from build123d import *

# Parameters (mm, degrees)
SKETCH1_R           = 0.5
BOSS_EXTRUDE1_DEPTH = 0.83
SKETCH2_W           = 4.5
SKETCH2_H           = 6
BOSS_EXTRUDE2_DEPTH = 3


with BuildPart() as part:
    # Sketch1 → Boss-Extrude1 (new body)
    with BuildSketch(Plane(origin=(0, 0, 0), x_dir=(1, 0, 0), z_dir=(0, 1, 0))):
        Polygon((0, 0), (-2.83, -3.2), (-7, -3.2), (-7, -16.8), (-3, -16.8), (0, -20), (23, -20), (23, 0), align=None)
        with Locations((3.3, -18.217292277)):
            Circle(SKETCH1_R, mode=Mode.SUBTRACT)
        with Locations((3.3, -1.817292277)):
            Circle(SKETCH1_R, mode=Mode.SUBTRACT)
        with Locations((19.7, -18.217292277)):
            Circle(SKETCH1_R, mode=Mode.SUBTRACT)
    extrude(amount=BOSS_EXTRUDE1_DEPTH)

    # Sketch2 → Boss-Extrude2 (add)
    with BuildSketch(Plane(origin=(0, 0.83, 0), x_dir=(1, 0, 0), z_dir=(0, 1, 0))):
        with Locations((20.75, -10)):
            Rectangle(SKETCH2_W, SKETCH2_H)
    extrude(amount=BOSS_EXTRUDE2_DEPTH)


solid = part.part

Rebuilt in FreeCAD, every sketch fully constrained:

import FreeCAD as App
import Part
import Sketcher

doc = App.newDocument("Part")
body = doc.addObject("PartDesign::Body", "Body")

sketch1 = body.newObject("Sketcher::SketchObject", "Sketch")
sketch1.AttachmentSupport = (doc.getObject("XZ_Plane"), [""])
sketch1.MapMode = "FlatFace"
sketch1.addGeometry(Part.LineSegment(App.Vector(0, 0, 0), App.Vector(-2.8, 3.2, 0)), False)
sketch1.addGeometry(Part.LineSegment(App.Vector(-2.8, 3.2, 0), App.Vector(-7, 3.2, 0)), False)
sketch1.addGeometry(Part.LineSegment(App.Vector(-7, 3.2, 0), App.Vector(-7, 16.8, 0)), False)
sketch1.addGeometry(Part.LineSegment(App.Vector(-7, 16.8, 0), App.Vector(-3, 16.8, 0)), False)
sketch1.addGeometry(Part.LineSegment(App.Vector(-3, 16.8, 0), App.Vector(0, 20, 0)), False)
sketch1.addGeometry(Part.LineSegment(App.Vector(0, 20, 0), App.Vector(23, 20, 0)), False)
sketch1.addGeometry(Part.LineSegment(App.Vector(23, 20, 0), App.Vector(23, 0, 0)), False)
sketch1.addGeometry(Part.LineSegment(App.Vector(23, 0, 0), App.Vector(0, 0, 0)), False)
sketch1.addGeometry(Part.Circle(App.Vector(3.3, 18.2, 0), App.Vector(0, 0, 1), 0.5), False)
sketch1.addGeometry(Part.Circle(App.Vector(19.7, 18.2, 0), App.Vector(0, 0, 1), 0.5), False)
sketch1.addGeometry(Part.Circle(App.Vector(3.3, 1.8, 0), App.Vector(0, 0, 1), 0.5), False)
sketch1.addConstraint(Sketcher.Constraint("Coincident", 0, 2, 1, 1))
sketch1.addConstraint(Sketcher.Constraint("Coincident", 1, 2, 2, 1))
sketch1.addConstraint(Sketcher.Constraint("Coincident", 2, 2, 3, 1))
sketch1.addConstraint(Sketcher.Constraint("Coincident", 3, 2, 4, 1))
sketch1.addConstraint(Sketcher.Constraint("Coincident", 4, 2, 5, 1))
sketch1.addConstraint(Sketcher.Constraint("Coincident", 5, 2, 6, 1))
sketch1.addConstraint(Sketcher.Constraint("Coincident", 6, 2, 7, 1))
sketch1.addConstraint(Sketcher.Constraint("Coincident", 7, 2, 0, 1))
sketch1.addConstraint(Sketcher.Constraint("Horizontal", 1))
sketch1.addConstraint(Sketcher.Constraint("Vertical", 2))
sketch1.addConstraint(Sketcher.Constraint("Horizontal", 3))
sketch1.addConstraint(Sketcher.Constraint("Horizontal", 5))
sketch1.addConstraint(Sketcher.Constraint("Vertical", 6))
sketch1.addConstraint(Sketcher.Constraint("Horizontal", 7))
sketch1.addConstraint(Sketcher.Constraint("Coincident", 7, 2, -1, 1))
sketch1.addConstraint(Sketcher.Constraint("Equal", 8, 9))
sketch1.addConstraint(Sketcher.Constraint("Equal", 9, 10))
sketch1.addConstraint(Sketcher.Constraint("PointOnObject", 4, 2, -2))
sketch1.addConstraint(Sketcher.Constraint("Horizontal", 8, 3, 9, 3))
sketch1.addConstraint(Sketcher.Constraint("Vertical", 8, 3, 10, 3))
sketch1.addConstraint(Sketcher.Constraint("Diameter", 8, 1.0))
sketch1.addConstraint(Sketcher.Constraint("DistanceX", 3, 1, 3, 2, 4.0))
sketch1.addConstraint(Sketcher.Constraint("DistanceX", 5, 1, 5, 2, 23.0))
sketch1.addConstraint(Sketcher.Constraint("DistanceY", 6, 2, 6, 1, 20.0))
sketch1.addConstraint(Sketcher.Constraint("DistanceY", 2, 1, 2, 2, 13.6))
sketch1.addConstraint(Sketcher.Constraint("DistanceX", 1, 2, -1, 1, 7.0))
sketch1.addConstraint(Sketcher.Constraint("DistanceX", 1, 2, 1, 1, 4.17))
sketch1.addConstraint(Sketcher.Constraint("DistanceX", -1, 1, 8, 3, 3.3))
sketch1.addConstraint(Sketcher.Constraint("DistanceX", -1, 1, 9, 3, 19.7))
sketch1.addConstraint(Sketcher.Constraint("DistanceY", -1, 1, 0, 2, 3.2))
sketch1.addConstraint(Sketcher.Constraint("DistanceY", 10, 3, 8, 3, 16.4))
sketch1.addConstraint(Sketcher.Constraint("DistanceY", -1, 1, 8, 3, 18.217292))
pad1 = body.newObject("PartDesign::Pad", "Pad")
pad1.Profile = sketch1
pad1.Length = 0.83
pad1.Reversed = True

sketch2 = body.newObject("Sketcher::SketchObject", "Sketch001")
sketch2.AttachmentSupport = (doc.getObject("XZ_Plane"), [""])
sketch2.MapMode = "FlatFace"
sketch2.AttachmentOffset = App.Placement(App.Vector(0, 0, -0.83), App.Rotation())
sketch2.addGeometry(Part.LineSegment(App.Vector(18.5, 7, 0), App.Vector(18.5, 13, 0)), False)
sketch2.addGeometry(Part.LineSegment(App.Vector(18.5, 13, 0), App.Vector(23, 13, 0)), False)
sketch2.addGeometry(Part.LineSegment(App.Vector(23, 13, 0), App.Vector(23, 7, 0)), False)
sketch2.addGeometry(Part.LineSegment(App.Vector(23, 7, 0), App.Vector(18.5, 7, 0)), False)
sketch2.addConstraint(Sketcher.Constraint("Coincident", 0, 2, 1, 1))
sketch2.addConstraint(Sketcher.Constraint("Coincident", 1, 2, 2, 1))
sketch2.addConstraint(Sketcher.Constraint("Coincident", 2, 2, 3, 1))
sketch2.addConstraint(Sketcher.Constraint("Coincident", 3, 2, 0, 1))
sketch2.addConstraint(Sketcher.Constraint("Vertical", 0))
sketch2.addConstraint(Sketcher.Constraint("Horizontal", 1))
sketch2.addConstraint(Sketcher.Constraint("Vertical", 2))
sketch2.addConstraint(Sketcher.Constraint("Horizontal", 3))
sketch2.addConstraint(Sketcher.Constraint("DistanceY", 0, 1, 0, 2, 6.0))
sketch2.addConstraint(Sketcher.Constraint("DistanceX", 1, 1, 1, 2, 4.5))
sketch2.addConstraint(Sketcher.Constraint("DistanceY", -1, 1, 0, 2, 13.0))
sketch2.addConstraint(Sketcher.Constraint("DistanceX", -1, 1, 1, 2, 23.0))
pad2 = body.newObject("PartDesign::Pad", "Pad001")
pad2.Profile = sketch2
pad2.Length = 3
pad2.Reversed = True

doc.recompute()
